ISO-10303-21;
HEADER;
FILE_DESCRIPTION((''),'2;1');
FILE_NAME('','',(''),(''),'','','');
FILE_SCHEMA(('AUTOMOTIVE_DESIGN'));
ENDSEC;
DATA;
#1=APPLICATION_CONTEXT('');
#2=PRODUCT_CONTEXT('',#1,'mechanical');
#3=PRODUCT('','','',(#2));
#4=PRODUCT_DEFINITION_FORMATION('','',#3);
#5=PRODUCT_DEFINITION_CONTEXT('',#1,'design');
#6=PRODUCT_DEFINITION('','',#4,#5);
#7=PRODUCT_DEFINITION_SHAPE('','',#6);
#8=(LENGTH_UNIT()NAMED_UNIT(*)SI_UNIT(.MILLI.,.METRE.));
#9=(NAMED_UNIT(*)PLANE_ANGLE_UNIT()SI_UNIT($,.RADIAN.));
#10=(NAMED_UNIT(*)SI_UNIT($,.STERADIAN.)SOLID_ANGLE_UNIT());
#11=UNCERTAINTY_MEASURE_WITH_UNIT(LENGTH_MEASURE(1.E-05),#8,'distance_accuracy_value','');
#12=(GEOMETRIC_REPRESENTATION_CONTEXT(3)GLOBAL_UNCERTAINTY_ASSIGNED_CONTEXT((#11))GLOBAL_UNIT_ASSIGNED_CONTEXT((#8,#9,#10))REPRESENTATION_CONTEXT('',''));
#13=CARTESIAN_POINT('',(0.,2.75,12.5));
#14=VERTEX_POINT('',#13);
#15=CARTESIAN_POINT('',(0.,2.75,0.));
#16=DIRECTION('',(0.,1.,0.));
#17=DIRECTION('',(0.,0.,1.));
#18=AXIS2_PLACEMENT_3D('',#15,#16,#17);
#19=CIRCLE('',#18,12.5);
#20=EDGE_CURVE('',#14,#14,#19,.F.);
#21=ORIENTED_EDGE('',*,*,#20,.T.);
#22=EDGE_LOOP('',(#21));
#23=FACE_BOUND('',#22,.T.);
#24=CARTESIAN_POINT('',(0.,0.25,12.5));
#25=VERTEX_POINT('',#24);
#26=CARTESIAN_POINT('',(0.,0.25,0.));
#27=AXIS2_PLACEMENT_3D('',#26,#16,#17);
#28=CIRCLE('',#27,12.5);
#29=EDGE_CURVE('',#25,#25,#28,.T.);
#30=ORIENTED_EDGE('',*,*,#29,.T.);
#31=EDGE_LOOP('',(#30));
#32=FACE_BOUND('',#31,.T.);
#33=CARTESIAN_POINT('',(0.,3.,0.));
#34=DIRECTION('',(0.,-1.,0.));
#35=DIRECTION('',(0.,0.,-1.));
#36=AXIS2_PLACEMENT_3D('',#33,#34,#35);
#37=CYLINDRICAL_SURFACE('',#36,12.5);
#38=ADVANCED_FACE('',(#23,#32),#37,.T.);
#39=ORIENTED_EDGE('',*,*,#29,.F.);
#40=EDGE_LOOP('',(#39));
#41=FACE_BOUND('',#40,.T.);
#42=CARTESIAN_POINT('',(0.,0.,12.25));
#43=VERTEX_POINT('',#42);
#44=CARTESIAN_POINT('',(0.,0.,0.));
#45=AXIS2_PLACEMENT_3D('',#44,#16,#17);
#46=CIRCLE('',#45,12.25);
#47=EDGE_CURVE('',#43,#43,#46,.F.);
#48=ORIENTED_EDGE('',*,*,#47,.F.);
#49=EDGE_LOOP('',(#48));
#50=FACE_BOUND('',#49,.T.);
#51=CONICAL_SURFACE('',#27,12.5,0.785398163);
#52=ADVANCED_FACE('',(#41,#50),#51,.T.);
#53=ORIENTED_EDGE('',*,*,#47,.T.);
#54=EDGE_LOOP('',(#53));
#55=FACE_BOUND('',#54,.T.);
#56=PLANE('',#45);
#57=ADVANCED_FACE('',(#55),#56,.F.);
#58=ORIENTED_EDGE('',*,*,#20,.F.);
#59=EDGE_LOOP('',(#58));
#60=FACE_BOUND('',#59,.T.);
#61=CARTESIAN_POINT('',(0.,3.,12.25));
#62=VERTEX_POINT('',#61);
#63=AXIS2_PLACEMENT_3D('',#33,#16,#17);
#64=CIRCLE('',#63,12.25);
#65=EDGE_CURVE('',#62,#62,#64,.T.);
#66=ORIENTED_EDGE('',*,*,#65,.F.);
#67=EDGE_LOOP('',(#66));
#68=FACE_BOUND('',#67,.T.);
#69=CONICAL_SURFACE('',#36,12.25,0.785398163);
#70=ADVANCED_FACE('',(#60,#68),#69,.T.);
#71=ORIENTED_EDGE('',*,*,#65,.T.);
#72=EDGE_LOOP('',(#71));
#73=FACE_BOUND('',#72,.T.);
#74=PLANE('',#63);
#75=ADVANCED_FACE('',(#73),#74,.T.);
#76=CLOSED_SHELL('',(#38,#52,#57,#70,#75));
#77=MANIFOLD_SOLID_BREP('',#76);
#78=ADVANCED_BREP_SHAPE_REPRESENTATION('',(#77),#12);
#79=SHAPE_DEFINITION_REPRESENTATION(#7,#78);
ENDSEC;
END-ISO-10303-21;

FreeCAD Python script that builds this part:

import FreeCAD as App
import Part
import Sketcher
Q = App.Units.Quantity


def edges_at(feature, points):
    """Names of the edges that pass closest to the given points."""
    edges = feature.Shape.Edges
    near = lambda p: min(range(len(edges)), key=lambda i: edges[i].distToShape(Part.Vertex(*p))[0])
    return sorted({f"Edge{near(p) + 1}" for p in points})

doc = App.newDocument("Part")
params = doc.addObject("Spreadsheet::Sheet", "Params")
for row, (alias, value) in enumerate([
    ("sketch1_diameter", "25 mm"),
    ("pad1_length", "3 mm"),
    ("chamfer_size", "0.25 mm"),
], start=1):
    params.set(f"A{row}", alias)
    params.set(f"B{row}", "=" + value)
    params.setAlias(f"B{row}", alias)

body = doc.addObject("PartDesign::Body", "Body")

# Sketch on XZ plane
sketch1 = doc.addObject("Sketcher::SketchObject", "Sketch")
body.addObject(sketch1)
sketch1.AttachmentSupport = (doc.XZ_Plane, [""])
sketch1.MapMode = "FlatFace"
sketch1.addGeometry(Part.Circle(App.Vector(0, 0, 0), App.Vector(0, 0, 1), 12), False)
sketch1.addConstraint([
    Sketcher.Constraint("Coincident", 0, 3, -1, 1),
    Sketcher.Constraint("Diameter", 0, Q("25 mm")),
])
sketch1.setExpression("Constraints[1]", "Params.sketch1_diameter")
pad1 = doc.addObject("PartDesign::Pad", "Pad")
body.addObject(pad1)
pad1.Profile = sketch1
pad1.setExpression("Length", "Params.pad1_length")
pad1.Reversed = True
doc.recompute()

chamfer = doc.addObject("PartDesign::Chamfer", "Chamfer")
body.addObject(chamfer)
chamfer.Base = (pad1, edges_at(pad1, [(0, 0, -12.5), (0, 3, -12.5)]))
chamfer.setExpression("Size", "Params.chamfer_size")

doc.recompute()
